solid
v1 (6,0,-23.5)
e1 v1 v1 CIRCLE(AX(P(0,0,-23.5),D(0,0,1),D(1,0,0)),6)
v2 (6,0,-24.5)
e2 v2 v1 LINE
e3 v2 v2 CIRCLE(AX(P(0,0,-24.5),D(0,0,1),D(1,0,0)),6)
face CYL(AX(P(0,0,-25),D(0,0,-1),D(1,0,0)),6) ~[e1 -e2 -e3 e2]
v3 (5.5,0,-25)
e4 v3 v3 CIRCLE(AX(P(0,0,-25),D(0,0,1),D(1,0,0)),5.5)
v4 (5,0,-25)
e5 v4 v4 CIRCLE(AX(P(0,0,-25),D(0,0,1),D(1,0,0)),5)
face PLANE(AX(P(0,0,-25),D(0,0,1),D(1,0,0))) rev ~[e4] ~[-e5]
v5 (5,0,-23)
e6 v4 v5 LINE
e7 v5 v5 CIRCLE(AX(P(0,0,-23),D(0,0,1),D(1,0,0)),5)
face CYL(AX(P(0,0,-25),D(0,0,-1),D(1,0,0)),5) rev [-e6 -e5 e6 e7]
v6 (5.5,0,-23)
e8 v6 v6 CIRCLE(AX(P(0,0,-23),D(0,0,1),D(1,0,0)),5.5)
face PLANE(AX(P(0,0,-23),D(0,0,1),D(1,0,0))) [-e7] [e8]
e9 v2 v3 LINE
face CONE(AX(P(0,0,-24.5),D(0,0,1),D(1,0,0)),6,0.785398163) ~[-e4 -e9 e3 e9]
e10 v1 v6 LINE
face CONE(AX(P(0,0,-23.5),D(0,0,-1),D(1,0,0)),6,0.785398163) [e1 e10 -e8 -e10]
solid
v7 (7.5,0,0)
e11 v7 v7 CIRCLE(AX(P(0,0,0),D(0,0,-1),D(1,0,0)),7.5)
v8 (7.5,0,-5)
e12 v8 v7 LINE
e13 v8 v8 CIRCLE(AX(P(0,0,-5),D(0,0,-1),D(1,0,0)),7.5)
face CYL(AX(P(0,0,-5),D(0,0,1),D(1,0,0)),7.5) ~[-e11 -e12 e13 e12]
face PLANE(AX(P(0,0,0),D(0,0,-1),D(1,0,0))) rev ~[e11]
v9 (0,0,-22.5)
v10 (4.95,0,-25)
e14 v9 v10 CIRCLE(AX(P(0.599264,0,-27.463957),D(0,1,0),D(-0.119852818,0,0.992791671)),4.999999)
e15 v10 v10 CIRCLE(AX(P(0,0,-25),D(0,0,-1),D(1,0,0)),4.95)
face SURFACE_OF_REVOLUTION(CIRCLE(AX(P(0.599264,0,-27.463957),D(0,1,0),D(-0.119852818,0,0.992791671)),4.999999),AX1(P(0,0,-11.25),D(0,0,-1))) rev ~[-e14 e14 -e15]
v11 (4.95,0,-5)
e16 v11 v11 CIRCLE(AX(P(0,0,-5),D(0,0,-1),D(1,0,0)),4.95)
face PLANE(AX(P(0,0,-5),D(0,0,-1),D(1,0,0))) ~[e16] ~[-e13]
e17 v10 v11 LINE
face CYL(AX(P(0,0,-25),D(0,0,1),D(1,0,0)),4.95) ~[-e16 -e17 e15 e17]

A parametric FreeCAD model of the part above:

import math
import FreeCAD as App
import Part
import Sketcher


def edges_at(feature, points):
    """Names of the edges that pass closest to the given points."""
    edges = feature.Shape.Edges
    near = lambda p: min(range(len(edges)), key=lambda i: edges[i].distToShape(Part.Vertex(*p))[0])
    return sorted({f"Edge{near(p) + 1}" for p in points})

doc = App.newDocument("Part")
body = doc.addObject("PartDesign::Body", "Body")

# Sketch on XZ plane
sketch1 = body.newObject("Sketcher::SketchObject", "Sketch")
sketch1.AttachmentSupport = (doc.getObject("XZ_Plane"), [""])
sketch1.MapMode = "FlatFace"
sketch1.addGeometry([
    Part.LineSegment(App.Vector(7.5, 0, 0), App.Vector(0, 0, 0)),  # 0
    Part.LineSegment(App.Vector(0, 0, 0), App.Vector(0, -22.5, 0)),  # 1
    Part.ArcOfCircle(Part.Circle(App.Vector(0.599264, -27.463957, 0), App.Vector(0, 0, 1), 4.999999), math.radians(29.524229), math.radians(96.883608)),  # 2
    Part.LineSegment(App.Vector(4.95, -25, 0), App.Vector(4.95, -5, 0)),  # 3
    Part.LineSegment(App.Vector(4.95, -5, 0), App.Vector(7.5, -5, 0)),  # 4
    Part.LineSegment(App.Vector(7.5, -5, 0), App.Vector(7.5, 0, 0)),  # 5
], False)
sketch1.addConstraint([
    Sketcher.Constraint("Coincident", 0, 2, 1, 1),
    Sketcher.Constraint("Coincident", 1, 2, 2, 2),
    Sketcher.Constraint("Coincident", 2, 1, 3, 1),
    Sketcher.Constraint("Coincident", 3, 2, 4, 1),
    Sketcher.Constraint("Coincident", 4, 2, 5, 1),
    Sketcher.Constraint("Coincident", 5, 2, 0, 1),
    Sketcher.Constraint("Horizontal", 0),
    Sketcher.Constraint("Vertical", 1),
    Sketcher.Constraint("Vertical", 3),
    Sketcher.Constraint("Horizontal", 4),
    Sketcher.Constraint("Vertical", 5),
    Sketcher.Constraint("Coincident", 0, 2, -1, 1),
    Sketcher.Constraint("Radius", 2, 4.999999),
    Sketcher.Constraint("DistanceY", 3, 1, 3, 2, 20.0),
    Sketcher.Constraint("DistanceY", 5, 1, 5, 2, 5.0),
    Sketcher.Constraint("DistanceX", 0, 2, 0, 1, 7.5),
    Sketcher.Constraint("DistanceY", 1, 2, 1, 1, 22.5),
    Sketcher.Constraint("DistanceX", 4, 1, 4, 2, 2.55),
])
revolution = body.newObject("PartDesign::Revolution", "Revolution")
revolution.Profile = sketch1
revolution.ReferenceAxis = (sketch1, ["V_Axis"])
revolution.Angle = 360
body2 = doc.addObject("PartDesign::Body", "Body001")

# Sketch on XY plane
sketch2 = body2.newObject("Sketcher::SketchObject", "Sketch001")
sketch2.AttachmentSupport = (doc.getObject("XY_Plane001"), [""])
sketch2.MapMode = "FlatFace"
sketch2.AttachmentOffset = App.Placement(App.Vector(0, 0, -25), App.Rotation())
sketch2.addGeometry([
    Part.Circle(App.Vector(0, 0, 0), App.Vector(0, 0, 1), 6),
    Part.Circle(App.Vector(0, 0, 0), App.Vector(0, 0, 1), 5),
], False)
sketch2.addConstraint([
    Sketcher.Constraint("Coincident", 0, 3, -1, 1),
    Sketcher.Constraint("Coincident", 1, 3, -1, 1),
    Sketcher.Constraint("Diameter", 0, 12.0),
    Sketcher.Constraint("Diameter", 1, 10.0),
])
pad1 = body2.newObject("PartDesign::Pad", "Pad")
pad1.Profile = sketch2
pad1.Length = 2
doc.recompute()

chamfer = body2.newObject("PartDesign::Chamfer", "Chamfer")
chamfer.Base = (pad1, edges_at(pad1, [(-6, 0, -25)]))
chamfer.Size = 0.5
doc.recompute()

chamfer2 = body2.newObject("PartDesign::Chamfer", "Chamfer001")
chamfer2.Base = (chamfer, edges_at(chamfer, [(-6, 0, -23)]))
chamfer2.Size = 0.5

doc.recompute()
